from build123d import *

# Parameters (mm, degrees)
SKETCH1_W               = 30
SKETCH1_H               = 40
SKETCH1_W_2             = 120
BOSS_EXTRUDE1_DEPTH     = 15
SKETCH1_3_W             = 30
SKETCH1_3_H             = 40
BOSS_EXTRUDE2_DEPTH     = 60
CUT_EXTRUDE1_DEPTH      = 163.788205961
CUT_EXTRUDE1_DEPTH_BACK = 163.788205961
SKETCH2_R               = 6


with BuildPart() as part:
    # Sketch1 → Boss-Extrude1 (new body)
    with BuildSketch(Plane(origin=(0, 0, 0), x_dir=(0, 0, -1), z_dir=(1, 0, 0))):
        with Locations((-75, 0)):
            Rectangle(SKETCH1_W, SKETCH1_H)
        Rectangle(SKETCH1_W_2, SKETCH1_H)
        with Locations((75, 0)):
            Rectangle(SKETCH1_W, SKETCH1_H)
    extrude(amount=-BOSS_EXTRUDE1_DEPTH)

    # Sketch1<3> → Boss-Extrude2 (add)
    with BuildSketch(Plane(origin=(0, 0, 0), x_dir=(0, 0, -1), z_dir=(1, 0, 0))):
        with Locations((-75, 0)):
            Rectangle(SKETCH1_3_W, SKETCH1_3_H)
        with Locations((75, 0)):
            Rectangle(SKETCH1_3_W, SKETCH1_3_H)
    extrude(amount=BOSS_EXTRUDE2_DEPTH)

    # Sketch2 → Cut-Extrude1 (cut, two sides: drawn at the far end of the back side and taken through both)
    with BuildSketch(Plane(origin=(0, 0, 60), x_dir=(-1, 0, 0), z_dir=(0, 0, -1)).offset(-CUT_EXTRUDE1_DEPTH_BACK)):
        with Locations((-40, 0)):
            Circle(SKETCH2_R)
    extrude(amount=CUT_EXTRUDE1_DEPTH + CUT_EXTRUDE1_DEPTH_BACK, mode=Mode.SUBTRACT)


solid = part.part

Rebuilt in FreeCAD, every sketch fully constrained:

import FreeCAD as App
import Part
import Sketcher
from FreeCAD import Vector

doc = App.newDocument("Part")
body = doc.addObject("PartDesign::Body", "Body")

# Sketch on YZ plane
sketch1 = body.newObject("Sketcher::SketchObject", "Sketch")
sketch1.AttachmentSupport = (doc.getObject("YZ_Plane"), [""])
sketch1.MapMode = "FlatFace"
sketch1.addGeometry(Part.LineSegment(Vector(20, 90, 0), Vector(-20, 90, 0)), False)
sketch1.addGeometry(Part.LineSegment(Vector(-20, 90, 0), Vector(-20, -90, 0)), False)
sketch1.addGeometry(Part.LineSegment(Vector(-20, -90, 0), Vector(20, -90, 0)), False)
sketch1.addGeometry(Part.LineSegment(Vector(20, -90, 0), Vector(20, 90, 0)), False)
sketch1.addConstraint(Sketcher.Constraint("Coincident", 0, 2, 1, 1))
sketch1.addConstraint(Sketcher.Constraint("Coincident", 1, 2, 2, 1))
sketch1.addConstraint(Sketcher.Constraint("Coincident", 2, 2, 3, 1))
sketch1.addConstraint(Sketcher.Constraint("Coincident", 3, 2, 0, 1))
sketch1.addConstraint(Sketcher.Constraint("Horizontal", 0))
sketch1.addConstraint(Sketcher.Constraint("Vertical", 1))
sketch1.addConstraint(Sketcher.Constraint("Horizontal", 2))
sketch1.addConstraint(Sketcher.Constraint("Vertical", 3))
sketch1.addConstraint(Sketcher.Constraint("Symmetric", 0, 2, 2, 2, -1, 1))
sketch1.addConstraint(Sketcher.Constraint("DistanceX", 0, 2, 0, 1, 40.0))
sketch1.addConstraint(Sketcher.Constraint("DistanceY", 1, 2, 1, 1, 180.0))
pad1 = body.newObject("PartDesign::Pad", "Pad")
pad1.Profile = sketch1
pad1.Length = 15
pad1.Reversed = True

# Sketch on YZ plane
sketch2 = body.newObject("Sketcher::SketchObject", "Sketch001")
sketch2.AttachmentSupport = (doc.getObject("YZ_Plane"), [""])
sketch2.MapMode = "FlatFace"
sketch2.addGeometry(Part.LineSegment(Vector(20, 90, 0), Vector(-20, 90, 0)), False)
sketch2.addGeometry(Part.LineSegment(Vector(-20, 90, 0), Vector(-20, 60, 0)), False)
sketch2.addGeometry(Part.LineSegment(Vector(-20, 60, 0), Vector(20, 60, 0)), False)
sketch2.addGeometry(Part.LineSegment(Vector(20, 60, 0), Vector(20, 90, 0)), False)
sketch2.addGeometry(Part.LineSegment(Vector(20, -60, 0), Vector(-20, -60, 0)), False)
sketch2.addGeometry(Part.LineSegment(Vector(-20, -60, 0), Vector(-20, -90, 0)), False)
sketch2.addGeometry(Part.LineSegment(Vector(-20, -90, 0), Vector(20, -90, 0)), False)
sketch2.addGeometry(Part.LineSegment(Vector(20, -90, 0), Vector(20, -60, 0)), False)
sketch2.addConstraint(Sketcher.Constraint("Coincident", 0, 2, 1, 1))
sketch2.addConstraint(Sketcher.Constraint("Coincident", 1, 2, 2, 1))
sketch2.addConstraint(Sketcher.Constraint("Coincident", 2, 2, 3, 1))
sketch2.addConstraint(Sketcher.Constraint("Coincident", 3, 2, 0, 1))
sketch2.addConstraint(Sketcher.Constraint("Coincident", 4, 2, 5, 1))
sketch2.addConstraint(Sketcher.Constraint("Coincident", 5, 2, 6, 1))
sketch2.addConstraint(Sketcher.Constraint("Coincident", 6, 2, 7, 1))
sketch2.addConstraint(Sketcher.Constraint("Coincident", 7, 2, 4, 1))
sketch2.addConstraint(Sketcher.Constraint("Horizontal", 0))
sketch2.addConstraint(Sketcher.Constraint("Vertical", 1))
sketch2.addConstraint(Sketcher.Constraint("Horizontal", 2))
sketch2.addConstraint(Sketcher.Constraint("Vertical", 3))
sketch2.addConstraint(Sketcher.Constraint("Horizontal", 4))
sketch2.addConstraint(Sketcher.Constraint("Vertical", 5))
sketch2.addConstraint(Sketcher.Constraint("Horizontal", 6))
sketch2.addConstraint(Sketcher.Constraint("Vertical", 7))
sketch2.addConstraint(Sketcher.Constraint("Symmetric", 2, 2, 4, 2, -1, 1))
sketch2.addConstraint(Sketcher.Constraint("Symmetric", 0, 2, 6, 2, -1, 1))
sketch2.addConstraint(Sketcher.Constraint("Vertical", 1, 2, 4, 2))
sketch2.addConstraint(Sketcher.Constraint("DistanceX", 0, 2, 0, 1, 40.0))
sketch2.addConstraint(Sketcher.Constraint("DistanceY", 1, 2, 1, 1, 30.0))
sketch2.addConstraint(Sketcher.Constraint("DistanceY", -1, 1, 0, 2, 90.0))
pad2 = body.newObject("PartDesign::Pad", "Pad001")
pad2.Profile = sketch2
pad2.Length = 60

# Sketch on XY plane
sketch3 = body.newObject("Sketcher::SketchObject", "Sketch002")
sketch3.AttachmentSupport = (doc.getObject("XY_Plane"), [""])
sketch3.MapMode = "FlatFace"
sketch3.AttachmentOffset = App.Placement(Vector(0, 0, 60), App.Rotation())
sketch3.addGeometry(Part.Circle(Vector(40, 0, 0), Vector(0, 0, 1), 6), False)
sketch3.addConstraint(Sketcher.Constraint("PointOnObject", 0, 3, -1))
sketch3.addConstraint(Sketcher.Constraint("Diameter", 0, 12.0))
sketch3.addConstraint(Sketcher.Constraint("DistanceX", -1, 1, 0, 3, 40.0))
pocket1 = body.newObject("PartDesign::Pocket", "Pocket")
pocket1.Profile = sketch3
pocket1.Type = "ThroughAll"
pocket1.Midplane = True

doc.recompute()
